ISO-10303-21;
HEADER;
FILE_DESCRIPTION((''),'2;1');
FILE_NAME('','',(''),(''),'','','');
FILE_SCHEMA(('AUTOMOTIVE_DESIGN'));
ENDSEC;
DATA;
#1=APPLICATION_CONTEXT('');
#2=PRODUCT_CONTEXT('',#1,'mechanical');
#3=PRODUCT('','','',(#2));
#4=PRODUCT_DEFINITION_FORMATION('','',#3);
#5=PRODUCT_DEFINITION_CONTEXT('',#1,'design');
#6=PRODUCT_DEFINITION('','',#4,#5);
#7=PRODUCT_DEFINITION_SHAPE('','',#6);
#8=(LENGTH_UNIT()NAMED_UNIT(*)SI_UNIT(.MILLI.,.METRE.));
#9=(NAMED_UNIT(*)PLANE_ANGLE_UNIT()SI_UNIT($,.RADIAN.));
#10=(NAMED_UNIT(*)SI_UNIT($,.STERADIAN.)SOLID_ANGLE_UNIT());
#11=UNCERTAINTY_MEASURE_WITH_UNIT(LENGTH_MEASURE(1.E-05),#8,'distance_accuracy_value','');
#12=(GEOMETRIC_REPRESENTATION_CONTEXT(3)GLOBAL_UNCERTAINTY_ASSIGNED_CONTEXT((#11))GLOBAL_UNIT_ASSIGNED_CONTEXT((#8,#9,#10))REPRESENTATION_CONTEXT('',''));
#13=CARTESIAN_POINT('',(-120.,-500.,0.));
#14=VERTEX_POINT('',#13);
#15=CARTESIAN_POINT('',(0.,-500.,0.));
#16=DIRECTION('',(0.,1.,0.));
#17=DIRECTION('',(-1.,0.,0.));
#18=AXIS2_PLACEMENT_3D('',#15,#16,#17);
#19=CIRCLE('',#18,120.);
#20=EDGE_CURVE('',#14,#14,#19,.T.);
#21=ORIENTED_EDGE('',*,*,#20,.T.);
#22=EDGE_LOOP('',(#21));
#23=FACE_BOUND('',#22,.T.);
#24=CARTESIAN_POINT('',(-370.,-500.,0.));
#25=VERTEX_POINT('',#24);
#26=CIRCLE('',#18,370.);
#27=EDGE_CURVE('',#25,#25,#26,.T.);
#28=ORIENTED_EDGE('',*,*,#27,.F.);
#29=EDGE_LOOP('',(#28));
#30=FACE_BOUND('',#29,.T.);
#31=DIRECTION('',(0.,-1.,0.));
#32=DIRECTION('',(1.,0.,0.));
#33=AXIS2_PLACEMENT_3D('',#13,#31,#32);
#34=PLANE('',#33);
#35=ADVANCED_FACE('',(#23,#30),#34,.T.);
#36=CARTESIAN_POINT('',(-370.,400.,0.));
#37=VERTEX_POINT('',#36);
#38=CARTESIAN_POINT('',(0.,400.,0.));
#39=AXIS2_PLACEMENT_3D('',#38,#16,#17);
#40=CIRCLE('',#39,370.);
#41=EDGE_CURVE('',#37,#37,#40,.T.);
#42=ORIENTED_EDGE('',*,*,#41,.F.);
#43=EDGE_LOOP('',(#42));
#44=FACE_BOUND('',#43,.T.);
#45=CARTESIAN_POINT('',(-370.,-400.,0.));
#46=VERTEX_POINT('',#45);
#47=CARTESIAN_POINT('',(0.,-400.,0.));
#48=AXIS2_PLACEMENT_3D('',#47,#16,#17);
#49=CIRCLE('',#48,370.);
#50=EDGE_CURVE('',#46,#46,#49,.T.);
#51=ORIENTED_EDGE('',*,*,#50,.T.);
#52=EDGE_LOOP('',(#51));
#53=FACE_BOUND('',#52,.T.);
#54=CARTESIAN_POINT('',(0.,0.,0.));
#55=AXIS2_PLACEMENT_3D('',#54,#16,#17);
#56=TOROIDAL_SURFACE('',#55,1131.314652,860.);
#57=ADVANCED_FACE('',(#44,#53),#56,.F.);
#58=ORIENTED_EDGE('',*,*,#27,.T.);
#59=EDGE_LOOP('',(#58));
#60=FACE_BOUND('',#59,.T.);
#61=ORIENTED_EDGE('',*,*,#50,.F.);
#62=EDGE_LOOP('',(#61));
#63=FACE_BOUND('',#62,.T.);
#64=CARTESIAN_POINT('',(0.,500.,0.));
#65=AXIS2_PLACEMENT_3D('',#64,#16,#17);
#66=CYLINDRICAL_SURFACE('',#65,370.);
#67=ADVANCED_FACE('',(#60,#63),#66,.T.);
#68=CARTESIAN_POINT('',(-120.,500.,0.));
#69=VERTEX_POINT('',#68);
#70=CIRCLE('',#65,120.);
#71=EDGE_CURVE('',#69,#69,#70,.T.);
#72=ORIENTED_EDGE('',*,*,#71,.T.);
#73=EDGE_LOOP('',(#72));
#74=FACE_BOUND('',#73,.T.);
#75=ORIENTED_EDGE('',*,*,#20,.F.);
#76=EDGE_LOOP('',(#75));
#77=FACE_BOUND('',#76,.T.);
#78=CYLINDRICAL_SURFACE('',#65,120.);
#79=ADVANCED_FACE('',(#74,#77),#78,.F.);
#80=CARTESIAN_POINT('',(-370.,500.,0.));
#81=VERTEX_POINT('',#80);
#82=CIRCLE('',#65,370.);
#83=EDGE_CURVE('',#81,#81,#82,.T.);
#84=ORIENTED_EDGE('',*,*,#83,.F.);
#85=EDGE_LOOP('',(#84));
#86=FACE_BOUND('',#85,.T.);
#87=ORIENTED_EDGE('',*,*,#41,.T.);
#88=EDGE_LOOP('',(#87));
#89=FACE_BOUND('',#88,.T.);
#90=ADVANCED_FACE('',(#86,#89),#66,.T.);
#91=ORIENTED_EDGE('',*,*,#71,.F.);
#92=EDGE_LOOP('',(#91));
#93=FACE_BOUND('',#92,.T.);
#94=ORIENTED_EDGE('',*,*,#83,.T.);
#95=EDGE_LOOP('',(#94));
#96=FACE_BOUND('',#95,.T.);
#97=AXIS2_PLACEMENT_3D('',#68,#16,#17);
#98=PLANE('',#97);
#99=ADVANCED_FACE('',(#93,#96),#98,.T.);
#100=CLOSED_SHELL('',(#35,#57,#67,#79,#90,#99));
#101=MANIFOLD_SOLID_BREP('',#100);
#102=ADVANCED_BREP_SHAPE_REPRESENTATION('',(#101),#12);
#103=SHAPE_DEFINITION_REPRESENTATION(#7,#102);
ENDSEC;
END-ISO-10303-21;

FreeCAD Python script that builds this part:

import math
import FreeCAD as App
import Part
import Sketcher

doc = App.newDocument("Part")
body = doc.addObject("PartDesign::Body", "Body")

# Sketch on XY plane
sketch1 = body.newObject("Sketcher::SketchObject", "Sketch")
sketch1.AttachmentSupport = (doc.getObject("XY_Plane"), [""])
sketch1.MapMode = "FlatFace"
sketch1.addGeometry(Part.LineSegment(App.Vector(-120, 500, 0), App.Vector(-370, 500, 0)), False)
sketch1.addGeometry(Part.LineSegment(App.Vector(-370, 500, 0), App.Vector(-370, 400, 0)), False)
sketch1.addGeometry(Part.ArcOfCircle(Part.Circle(App.Vector(-1131, 0, 0), App.Vector(0, 0, 1), 860), math.radians(-28), math.radians(28)), False)
sketch1.addGeometry(Part.LineSegment(App.Vector(-370, -400, 0), App.Vector(-370, -500, 0)), False)
sketch1.addGeometry(Part.LineSegment(App.Vector(-370, -500, 0), App.Vector(-120, -500, 0)), False)
sketch1.addGeometry(Part.LineSegment(App.Vector(-120, -500, 0), App.Vector(-120, 500, 0)), False)
sketch1.addConstraint(Sketcher.Constraint("Coincident", 0, 2, 1, 1))
sketch1.addConstraint(Sketcher.Constraint("Coincident", 1, 2, 2, 2))
sketch1.addConstraint(Sketcher.Constraint("Coincident", 2, 1, 3, 1))
sketch1.addConstraint(Sketcher.Constraint("Coincident", 3, 2, 4, 1))
sketch1.addConstraint(Sketcher.Constraint("Coincident", 4, 2, 5, 1))
sketch1.addConstraint(Sketcher.Constraint("Coincident", 5, 2, 0, 1))
sketch1.addConstraint(Sketcher.Constraint("Horizontal", 0))
sketch1.addConstraint(Sketcher.Constraint("Vertical", 1))
sketch1.addConstraint(Sketcher.Constraint("Vertical", 3))
sketch1.addConstraint(Sketcher.Constraint("Horizontal", 4))
sketch1.addConstraint(Sketcher.Constraint("Vertical", 5))
sketch1.addConstraint(Sketcher.Constraint("Symmetric", 0, 2, 3, 2, -1))
sketch1.addConstraint(Sketcher.Constraint("PointOnObject", 2, 3, -1))
sketch1.addConstraint(Sketcher.Constraint("Radius", 2, 860.0))
sketch1.addConstraint(Sketcher.Constraint("DistanceX", 0, 2, 0, 1, 250.0))
sketch1.addConstraint(Sketcher.Constraint("DistanceY", 1, 2, 1, 1, 100.0))
sketch1.addConstraint(Sketcher.Constraint("DistanceY", 5, 1, 5, 2, 1000.0))
sketch1.addConstraint(Sketcher.Constraint("DistanceX", 0, 2, -1, 1, 370.0))
revolution = body.newObject("PartDesign::Revolution", "Revolution")
revolution.Profile = sketch1
revolution.ReferenceAxis = (sketch1, ["V_Axis"])
revolution.Angle = 360

doc.recompute()
